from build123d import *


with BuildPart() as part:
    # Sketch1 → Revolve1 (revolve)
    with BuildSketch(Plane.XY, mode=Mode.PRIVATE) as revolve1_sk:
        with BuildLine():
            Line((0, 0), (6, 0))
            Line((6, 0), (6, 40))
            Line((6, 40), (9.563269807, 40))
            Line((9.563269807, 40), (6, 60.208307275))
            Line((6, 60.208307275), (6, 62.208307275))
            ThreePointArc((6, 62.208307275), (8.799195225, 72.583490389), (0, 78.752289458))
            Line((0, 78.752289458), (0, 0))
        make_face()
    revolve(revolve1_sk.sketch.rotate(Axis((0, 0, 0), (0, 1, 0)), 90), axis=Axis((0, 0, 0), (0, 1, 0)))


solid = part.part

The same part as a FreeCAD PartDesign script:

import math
import FreeCAD as App
import Part
import Sketcher

V = App.Vector
Q = App.Units.Quantity

doc = App.newDocument("Part")
body = doc.addObject("PartDesign::Body", "Body")

# Sketch on XY plane
sketch1 = doc.addObject("Sketcher::SketchObject", "Sketch")
body.addObject(sketch1)
sketch1.AttachmentSupport = (doc.XY_Plane, [""])
sketch1.MapMode = "FlatFace"
sketch1.addGeometry(Part.LineSegment(V(0, 0, 0), V(6, 0, 0)), False)
sketch1.addGeometry(Part.LineSegment(V(6, 0, 0), V(6, 40, 0)), False)
sketch1.addGeometry(Part.LineSegment(V(6, 40, 0), V(9.6, 40, 0)), False)
sketch1.addGeometry(Part.LineSegment(V(9.6, 40, 0), V(6, 60.2, 0)), False)
sketch1.addGeometry(Part.LineSegment(V(6, 60.2, 0), V(6, 62.2, 0)), False)
sketch1.addGeometry(Part.ArcOfCircle(Part.Circle(V(0, 69.4, 0), V(0, 0, 1), 9.4), math.radians(-50), math.radians(90)), False)
sketch1.addGeometry(Part.LineSegment(V(0, 78.8, 0), V(0, 0, 0)), False)
sketch1.addConstraint(Sketcher.Constraint("Coincident", 0, 2, 1, 1))
sketch1.addConstraint(Sketcher.Constraint("Coincident", 1, 2, 2, 1))
sketch1.addConstraint(Sketcher.Constraint("Coincident", 2, 2, 3, 1))
sketch1.addConstraint(Sketcher.Constraint("Coincident", 3, 2, 4, 1))
sketch1.addConstraint(Sketcher.Constraint("Coincident", 4, 2, 5, 1))
sketch1.addConstraint(Sketcher.Constraint("Coincident", 5, 2, 6, 1))
sketch1.addConstraint(Sketcher.Constraint("Coincident", 6, 2, 0, 1))
sketch1.addConstraint(Sketcher.Constraint("Horizontal", 0))
sketch1.addConstraint(Sketcher.Constraint("Vertical", 1))
sketch1.addConstraint(Sketcher.Constraint("Horizontal", 2))
sketch1.addConstraint(Sketcher.Constraint("Vertical", 4))
sketch1.addConstraint(Sketcher.Constraint("Vertical", 6))
sketch1.addConstraint(Sketcher.Constraint("Coincident", 6, 2, -1, 1))
sketch1.addConstraint(Sketcher.Constraint("PointOnObject", 5, 3, -2))
sketch1.addConstraint(Sketcher.Constraint("Vertical", 1, 2, 3, 2))
sketch1.addConstraint(Sketcher.Constraint("DistanceX", 0, 1, 0, 2, Q("6 mm")))
sketch1.addConstraint(Sketcher.Constraint("DistanceY", 1, 1, 1, 2, Q("40 mm")))
sketch1.addConstraint(Sketcher.Constraint("DistanceY", 4, 1, 4, 2, Q("2 mm")))
sketch1.addConstraint(Sketcher.Constraint("Angle", 3, Q("100 deg")))
sketch1.addConstraint(Sketcher.Constraint("Radius", 5, Q("9.36 mm")))
sketch1.addConstraint(Sketcher.Constraint("DistanceX", 2, 1, 2, 2, Q("3.56327 mm")))
revolution = doc.addObject("PartDesign::Revolution", "Revolution")
body.addObject(revolution)
revolution.Profile = sketch1
revolution.ReferenceAxis = (sketch1, ["V_Axis"])
revolution.Angle = 360

doc.recompute()
